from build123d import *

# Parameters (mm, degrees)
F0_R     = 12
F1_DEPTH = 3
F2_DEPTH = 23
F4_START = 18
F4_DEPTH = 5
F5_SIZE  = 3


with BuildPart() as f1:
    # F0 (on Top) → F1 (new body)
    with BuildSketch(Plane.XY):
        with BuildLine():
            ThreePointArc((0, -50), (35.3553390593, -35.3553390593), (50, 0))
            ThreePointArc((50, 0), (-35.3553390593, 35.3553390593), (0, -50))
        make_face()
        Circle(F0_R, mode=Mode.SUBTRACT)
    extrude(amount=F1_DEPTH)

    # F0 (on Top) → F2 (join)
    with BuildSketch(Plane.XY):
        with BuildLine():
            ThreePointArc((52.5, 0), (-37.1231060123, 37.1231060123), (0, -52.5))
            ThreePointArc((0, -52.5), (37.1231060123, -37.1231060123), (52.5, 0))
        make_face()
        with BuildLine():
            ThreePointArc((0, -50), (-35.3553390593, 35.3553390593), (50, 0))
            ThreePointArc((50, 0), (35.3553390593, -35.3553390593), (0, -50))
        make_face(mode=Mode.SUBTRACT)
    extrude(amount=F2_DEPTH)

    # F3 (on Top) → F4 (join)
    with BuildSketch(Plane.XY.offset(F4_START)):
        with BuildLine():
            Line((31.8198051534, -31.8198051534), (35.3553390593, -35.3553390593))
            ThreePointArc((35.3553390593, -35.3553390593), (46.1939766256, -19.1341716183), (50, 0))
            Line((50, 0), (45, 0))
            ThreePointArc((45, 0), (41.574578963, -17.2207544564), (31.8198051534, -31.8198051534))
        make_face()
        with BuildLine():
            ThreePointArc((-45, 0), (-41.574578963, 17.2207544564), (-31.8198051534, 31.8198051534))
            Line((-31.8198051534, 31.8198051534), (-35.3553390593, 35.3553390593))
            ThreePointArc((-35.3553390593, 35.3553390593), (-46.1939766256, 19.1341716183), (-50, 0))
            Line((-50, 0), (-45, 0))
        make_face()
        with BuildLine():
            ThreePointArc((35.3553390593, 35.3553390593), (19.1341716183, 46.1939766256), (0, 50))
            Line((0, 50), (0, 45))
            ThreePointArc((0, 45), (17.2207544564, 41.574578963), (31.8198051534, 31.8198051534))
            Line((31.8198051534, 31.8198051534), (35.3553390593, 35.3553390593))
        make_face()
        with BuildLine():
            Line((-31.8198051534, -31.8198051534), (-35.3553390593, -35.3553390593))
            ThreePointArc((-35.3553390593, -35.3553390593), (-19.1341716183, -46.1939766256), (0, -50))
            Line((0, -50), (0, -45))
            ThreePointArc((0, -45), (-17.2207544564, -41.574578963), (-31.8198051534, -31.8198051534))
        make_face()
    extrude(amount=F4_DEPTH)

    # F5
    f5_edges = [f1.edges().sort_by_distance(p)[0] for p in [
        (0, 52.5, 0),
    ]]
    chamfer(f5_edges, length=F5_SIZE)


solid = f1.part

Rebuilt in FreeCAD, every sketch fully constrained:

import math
import FreeCAD as App
import Part
import Sketcher
from FreeCAD import Vector
Q = App.Units.Quantity


def edges_at(feature, points):
    """Names of the edges that pass closest to the given points."""
    edges = feature.Shape.Edges
    near = lambda p: min(range(len(edges)), key=lambda i: edges[i].distToShape(Part.Vertex(*p))[0])
    return sorted({f"Edge{near(p) + 1}" for p in points})

doc = App.newDocument("Part")
body = doc.addObject("PartDesign::Body", "Body")

sketch1 = body.newObject("Sketcher::SketchObject", "Sketch")
sketch1.AttachmentSupport = (doc.getObject("XY_Plane"), [""])
sketch1.MapMode = "FlatFace"
sketch1.addGeometry(Part.ArcOfCircle(Part.Circle(Vector(0, 0, 0), Vector(0, 0, 1), 50), math.radians(-90), math.radians(0)), False)
sketch1.addGeometry(Part.ArcOfCircle(Part.Circle(Vector(0, 0, 0), Vector(0, 0, 1), 50), math.radians(0), math.radians(270)), False)
sketch1.addGeometry(Part.Circle(Vector(0, 0, 0), Vector(0, 0, 1), 12), False)
sketch1.addConstraint(Sketcher.Constraint("Tangent", 0, 1, 1, 2))
sketch1.addConstraint(Sketcher.Constraint("Coincident", 1, 1, 0, 2))
sketch1.addConstraint(Sketcher.Constraint("Coincident", 0, 3, -1, 1))
sketch1.addConstraint(Sketcher.Constraint("Coincident", 2, 3, -1, 1))
sketch1.addConstraint(Sketcher.Constraint("PointOnObject", 0, 1, -2))
sketch1.addConstraint(Sketcher.Constraint("PointOnObject", 1, 1, -1))
sketch1.addConstraint(Sketcher.Constraint("Diameter", 2, Q("24 mm")))
sketch1.addConstraint(Sketcher.Constraint("Radius", 0, Q("50 mm")))
pad1 = body.newObject("PartDesign::Pad", "Pad")
pad1.Profile = sketch1
pad1.Length = 3

sketch2 = body.newObject("Sketcher::SketchObject", "Sketch001")
sketch2.AttachmentSupport = (doc.getObject("XY_Plane"), [""])
sketch2.MapMode = "FlatFace"
sketch2.addGeometry(Part.Circle(Vector(0, 0, 0), Vector(0, 0, 1), 52), False)
sketch2.addGeometry(Part.ArcOfCircle(Part.Circle(Vector(0, 0, 0), Vector(0, 0, 1), 50), math.radians(-90), math.radians(0)), False)
sketch2.addGeometry(Part.ArcOfCircle(Part.Circle(Vector(0, 0, 0), Vector(0, 0, 1), 50), math.radians(0), math.radians(270)), False)
sketch2.addConstraint(Sketcher.Constraint("Tangent", 1, 1, 2, 2))
sketch2.addConstraint(Sketcher.Constraint("Coincident", 2, 1, 1, 2))
sketch2.addConstraint(Sketcher.Constraint("Coincident", 0, 3, -1, 1))
sketch2.addConstraint(Sketcher.Constraint("Coincident", 1, 3, -1, 1))
sketch2.addConstraint(Sketcher.Constraint("PointOnObject", 1, 1, -2))
sketch2.addConstraint(Sketcher.Constraint("PointOnObject", 2, 1, -1))
sketch2.addConstraint(Sketcher.Constraint("Diameter", 0, Q("105 mm")))
sketch2.addConstraint(Sketcher.Constraint("Radius", 1, Q("50 mm")))
pad2 = body.newObject("PartDesign::Pad", "Pad001")
pad2.Profile = sketch2
pad2.Length = 23

sketch3 = body.newObject("Sketcher::SketchObject", "Sketch002")
sketch3.AttachmentSupport = (doc.getObject("XY_Plane"), [""])
sketch3.MapMode = "FlatFace"
sketch3.AttachmentOffset = App.Placement(Vector(0, 0, 18), App.Rotation())
sketch3.addGeometry(Part.LineSegment(Vector(32, -32, 0), Vector(35, -35, 0)), False)
sketch3.addGeometry(Part.ArcOfCircle(Part.Circle(Vector(0, 0, 0), Vector(0, 0, 1), 50), math.radians(-45), math.radians(0)), False)
sketch3.addGeometry(Part.LineSegment(Vector(50, 0, 0), Vector(45, 0, 0)), False)
sketch3.addGeometry(Part.ArcOfCircle(Part.Circle(Vector(0, 0, 0), Vector(0, 0, 1), 45), math.radians(-45), math.radians(0)), False)
sketch3.addGeometry(Part.ArcOfCircle(Part.Circle(Vector(0, 0, 0), Vector(0, 0, 1), 45), math.radians(135), math.radians(180)), False)
sketch3.addGeometry(Part.LineSegment(Vector(-32, 32, 0), Vector(-35, 35, 0)), False)
sketch3.addGeometry(Part.ArcOfCircle(Part.Circle(Vector(0, 0, 0), Vector(0, 0, 1), 50), math.radians(135), math.radians(180)), False)
sketch3.addGeometry(Part.LineSegment(Vector(-50, 0, 0), Vector(-45, 0, 0)), False)
sketch3.addGeometry(Part.ArcOfCircle(Part.Circle(Vector(0, 0, 0), Vector(0, 0, 1), 50), math.radians(45), math.radians(90)), False)
sketch3.addGeometry(Part.LineSegment(Vector(0, 50, 0), Vector(0, 45, 0)), False)
sketch3.addGeometry(Part.ArcOfCircle(Part.Circle(Vector(0, 0, 0), Vector(0, 0, 1), 45), math.radians(45), math.radians(90)), False)
sketch3.addGeometry(Part.LineSegment(Vector(32, 32, 0), Vector(35, 35, 0)), False)
sketch3.addGeometry(Part.LineSegment(Vector(-32, -32, 0), Vector(-35, -35, 0)), False)
sketch3.addGeometry(Part.ArcOfCircle(Part.Circle(Vector(0, 0, 0), Vector(0, 0, 1), 50), math.radians(-135), math.radians(-90)), False)
sketch3.addGeometry(Part.LineSegment(Vector(0, -50, 0), Vector(0, -45, 0)), False)
sketch3.addGeometry(Part.ArcOfCircle(Part.Circle(Vector(0, 0, 0), Vector(0, 0, 1), 45), math.radians(-135), math.radians(-90)), False)
sketch3.addConstraint(Sketcher.Constraint("Coincident", 0, 2, 1, 1))
sketch3.addConstraint(Sketcher.Constraint("Coincident", 1, 2, 2, 1))
sketch3.addConstraint(Sketcher.Constraint("Coincident", 2, 2, 3, 2))
sketch3.addConstraint(Sketcher.Constraint("Coincident", 3, 1, 0, 1))
sketch3.addConstraint(Sketcher.Constraint("Coincident", 4, 1, 5, 1))
sketch3.addConstraint(Sketcher.Constraint("Coincident", 5, 2, 6, 1))
sketch3.addConstraint(Sketcher.Constraint("Coincident", 6, 2, 7, 1))
sketch3.addConstraint(Sketcher.Constraint("Coincident", 7, 2, 4, 2))
sketch3.addConstraint(Sketcher.Constraint("Coincident", 8, 2, 9, 1))
sketch3.addConstraint(Sketcher.Constraint("Coincident", 9, 2, 10, 2))
sketch3.addConstraint(Sketcher.Constraint("Coincident", 10, 1, 11, 1))
sketch3.addConstraint(Sketcher.Constraint("Coincident", 11, 2, 8, 1))
sketch3.addConstraint(Sketcher.Constraint("Coincident", 12, 2, 13, 1))
sketch3.addConstraint(Sketcher.Constraint("Coincident", 13, 2, 14, 1))
sketch3.addConstraint(Sketcher.Constraint("Coincident", 14, 2, 15, 2))
sketch3.addConstraint(Sketcher.Constraint("Coincident", 15, 1, 12, 1))
sketch3.addConstraint(Sketcher.Constraint("Horizontal", 2))
sketch3.addConstraint(Sketcher.Constraint("Horizontal", 7))
sketch3.addConstraint(Sketcher.Constraint("Vertical", 9))
sketch3.addConstraint(Sketcher.Constraint("Vertical", 14))
sketch3.addConstraint(Sketcher.Constraint("Coincident", 1, 3, -1, 1))
sketch3.addConstraint(Sketcher.Constraint("Coincident", 3, 3, -1, 1))
sketch3.addConstraint(Sketcher.Constraint("Coincident", 4, 3, -1, 1))
sketch3.addConstraint(Sketcher.Constraint("Coincident", 6, 3, -1, 1))
sketch3.addConstraint(Sketcher.Constraint("Coincident", 8, 3, -1, 1))
sketch3.addConstraint(Sketcher.Constraint("Coincident", 10, 3, -1, 1))
sketch3.addConstraint(Sketcher.Constraint("Coincident", 13, 3, -1, 1))
sketch3.addConstraint(Sketcher.Constraint("Coincident", 15, 3, -1, 1))
sketch3.addConstraint(Sketcher.Constraint("Equal", 3, 4))
sketch3.addConstraint(Sketcher.Constraint("Equal", 1, 6))
sketch3.addConstraint(Sketcher.Constraint("Equal", 6, 8))
sketch3.addConstraint(Sketcher.Constraint("Equal", 4, 10))
sketch3.addConstraint(Sketcher.Constraint("Equal", 8, 13))
sketch3.addConstraint(Sketcher.Constraint("Equal", 10, 15))
sketch3.addConstraint(Sketcher.Constraint("PointOnObject", 1, 2, -1))
sketch3.addConstraint(Sketcher.Constraint("PointOnObject", 6, 2, -1))
sketch3.addConstraint(Sketcher.Constraint("PointOnObject", 8, 2, -2))
sketch3.addConstraint(Sketcher.Constraint("PointOnObject", 13, 2, -2))
sketch3.addConstraint(Sketcher.Constraint("Parallel", 0, 5))
sketch3.addConstraint(Sketcher.Constraint("Perpendicular", 5, 11))
sketch3.addConstraint(Sketcher.Constraint("Parallel", 11, 12))
sketch3.addConstraint(Sketcher.Constraint("Horizontal", 4, 1, 10, 1))
sketch3.addConstraint(Sketcher.Constraint("Horizontal", 5, 2, 11, 2))
sketch3.addConstraint(Sketcher.Constraint("Horizontal", 0, 2, 12, 2))
sketch3.addConstraint(Sketcher.Constraint("Vertical", 3, 1, 10, 1))
sketch3.addConstraint(Sketcher.Constraint("Radius", 1, Q("50 mm")))
sketch3.addConstraint(Sketcher.Constraint("Radius", 3, Q("45 mm")))
sketch3.addConstraint(Sketcher.Constraint("DistanceX", -1, 1, 0, 2, Q("35.355339 mm")))
pad3 = body.newObject("PartDesign::Pad", "Pad002")
pad3.Profile = sketch3
pad3.Length = 5
doc.recompute()

chamfer = body.newObject("PartDesign::Chamfer", "Chamfer")
chamfer.Base = (pad3, edges_at(pad3, [(0, 52.5, 0)]))
chamfer.Size = 3

doc.recompute()
